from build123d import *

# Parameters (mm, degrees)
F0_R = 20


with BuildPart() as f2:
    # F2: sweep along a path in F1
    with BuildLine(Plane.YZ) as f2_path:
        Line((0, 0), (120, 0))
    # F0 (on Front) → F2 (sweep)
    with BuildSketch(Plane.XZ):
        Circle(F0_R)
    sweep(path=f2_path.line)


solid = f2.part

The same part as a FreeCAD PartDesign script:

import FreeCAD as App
import Part
import Sketcher
from FreeCAD import Vector

doc = App.newDocument("Part")
body = doc.addObject("PartDesign::Body", "Body")

sketch1 = body.newObject("Sketcher::SketchObject", "Sketch")
sketch1.AttachmentSupport = (doc.getObject("XZ_Plane"), [""])
sketch1.MapMode = "FlatFace"
sketch1.addGeometry(Part.Circle(Vector(0, 0, 0), Vector(0, 0, 1), 20), False)
sketch1.addConstraint(Sketcher.Constraint("Coincident", 0, 3, -1, 1))
sketch1.addConstraint(Sketcher.Constraint("Diameter", 0, 40.0))

sketch2 = body.newObject("Sketcher::SketchObject", "Sketch001")
sketch2.AttachmentSupport = (doc.getObject("XY_Plane"), [""])
sketch2.MapMode = "FlatFace"
sketch2.addGeometry(Part.LineSegment(Vector(0, 0, 0), Vector(0, 120, 0)), False)
sketch2.addConstraint(Sketcher.Constraint("Vertical", 0))
sketch2.addConstraint(Sketcher.Constraint("Coincident", 0, 1, -1, 1))
sketch2.addConstraint(Sketcher.Constraint("DistanceY", 0, 1, 0, 2, 120.0))
doc.recompute()

additivepipe = body.newObject("PartDesign::AdditivePipe", "AdditivePipe")
additivepipe.Profile = sketch1
additivepipe.Spine = (sketch2, ["Edge1"])

doc.recompute()
